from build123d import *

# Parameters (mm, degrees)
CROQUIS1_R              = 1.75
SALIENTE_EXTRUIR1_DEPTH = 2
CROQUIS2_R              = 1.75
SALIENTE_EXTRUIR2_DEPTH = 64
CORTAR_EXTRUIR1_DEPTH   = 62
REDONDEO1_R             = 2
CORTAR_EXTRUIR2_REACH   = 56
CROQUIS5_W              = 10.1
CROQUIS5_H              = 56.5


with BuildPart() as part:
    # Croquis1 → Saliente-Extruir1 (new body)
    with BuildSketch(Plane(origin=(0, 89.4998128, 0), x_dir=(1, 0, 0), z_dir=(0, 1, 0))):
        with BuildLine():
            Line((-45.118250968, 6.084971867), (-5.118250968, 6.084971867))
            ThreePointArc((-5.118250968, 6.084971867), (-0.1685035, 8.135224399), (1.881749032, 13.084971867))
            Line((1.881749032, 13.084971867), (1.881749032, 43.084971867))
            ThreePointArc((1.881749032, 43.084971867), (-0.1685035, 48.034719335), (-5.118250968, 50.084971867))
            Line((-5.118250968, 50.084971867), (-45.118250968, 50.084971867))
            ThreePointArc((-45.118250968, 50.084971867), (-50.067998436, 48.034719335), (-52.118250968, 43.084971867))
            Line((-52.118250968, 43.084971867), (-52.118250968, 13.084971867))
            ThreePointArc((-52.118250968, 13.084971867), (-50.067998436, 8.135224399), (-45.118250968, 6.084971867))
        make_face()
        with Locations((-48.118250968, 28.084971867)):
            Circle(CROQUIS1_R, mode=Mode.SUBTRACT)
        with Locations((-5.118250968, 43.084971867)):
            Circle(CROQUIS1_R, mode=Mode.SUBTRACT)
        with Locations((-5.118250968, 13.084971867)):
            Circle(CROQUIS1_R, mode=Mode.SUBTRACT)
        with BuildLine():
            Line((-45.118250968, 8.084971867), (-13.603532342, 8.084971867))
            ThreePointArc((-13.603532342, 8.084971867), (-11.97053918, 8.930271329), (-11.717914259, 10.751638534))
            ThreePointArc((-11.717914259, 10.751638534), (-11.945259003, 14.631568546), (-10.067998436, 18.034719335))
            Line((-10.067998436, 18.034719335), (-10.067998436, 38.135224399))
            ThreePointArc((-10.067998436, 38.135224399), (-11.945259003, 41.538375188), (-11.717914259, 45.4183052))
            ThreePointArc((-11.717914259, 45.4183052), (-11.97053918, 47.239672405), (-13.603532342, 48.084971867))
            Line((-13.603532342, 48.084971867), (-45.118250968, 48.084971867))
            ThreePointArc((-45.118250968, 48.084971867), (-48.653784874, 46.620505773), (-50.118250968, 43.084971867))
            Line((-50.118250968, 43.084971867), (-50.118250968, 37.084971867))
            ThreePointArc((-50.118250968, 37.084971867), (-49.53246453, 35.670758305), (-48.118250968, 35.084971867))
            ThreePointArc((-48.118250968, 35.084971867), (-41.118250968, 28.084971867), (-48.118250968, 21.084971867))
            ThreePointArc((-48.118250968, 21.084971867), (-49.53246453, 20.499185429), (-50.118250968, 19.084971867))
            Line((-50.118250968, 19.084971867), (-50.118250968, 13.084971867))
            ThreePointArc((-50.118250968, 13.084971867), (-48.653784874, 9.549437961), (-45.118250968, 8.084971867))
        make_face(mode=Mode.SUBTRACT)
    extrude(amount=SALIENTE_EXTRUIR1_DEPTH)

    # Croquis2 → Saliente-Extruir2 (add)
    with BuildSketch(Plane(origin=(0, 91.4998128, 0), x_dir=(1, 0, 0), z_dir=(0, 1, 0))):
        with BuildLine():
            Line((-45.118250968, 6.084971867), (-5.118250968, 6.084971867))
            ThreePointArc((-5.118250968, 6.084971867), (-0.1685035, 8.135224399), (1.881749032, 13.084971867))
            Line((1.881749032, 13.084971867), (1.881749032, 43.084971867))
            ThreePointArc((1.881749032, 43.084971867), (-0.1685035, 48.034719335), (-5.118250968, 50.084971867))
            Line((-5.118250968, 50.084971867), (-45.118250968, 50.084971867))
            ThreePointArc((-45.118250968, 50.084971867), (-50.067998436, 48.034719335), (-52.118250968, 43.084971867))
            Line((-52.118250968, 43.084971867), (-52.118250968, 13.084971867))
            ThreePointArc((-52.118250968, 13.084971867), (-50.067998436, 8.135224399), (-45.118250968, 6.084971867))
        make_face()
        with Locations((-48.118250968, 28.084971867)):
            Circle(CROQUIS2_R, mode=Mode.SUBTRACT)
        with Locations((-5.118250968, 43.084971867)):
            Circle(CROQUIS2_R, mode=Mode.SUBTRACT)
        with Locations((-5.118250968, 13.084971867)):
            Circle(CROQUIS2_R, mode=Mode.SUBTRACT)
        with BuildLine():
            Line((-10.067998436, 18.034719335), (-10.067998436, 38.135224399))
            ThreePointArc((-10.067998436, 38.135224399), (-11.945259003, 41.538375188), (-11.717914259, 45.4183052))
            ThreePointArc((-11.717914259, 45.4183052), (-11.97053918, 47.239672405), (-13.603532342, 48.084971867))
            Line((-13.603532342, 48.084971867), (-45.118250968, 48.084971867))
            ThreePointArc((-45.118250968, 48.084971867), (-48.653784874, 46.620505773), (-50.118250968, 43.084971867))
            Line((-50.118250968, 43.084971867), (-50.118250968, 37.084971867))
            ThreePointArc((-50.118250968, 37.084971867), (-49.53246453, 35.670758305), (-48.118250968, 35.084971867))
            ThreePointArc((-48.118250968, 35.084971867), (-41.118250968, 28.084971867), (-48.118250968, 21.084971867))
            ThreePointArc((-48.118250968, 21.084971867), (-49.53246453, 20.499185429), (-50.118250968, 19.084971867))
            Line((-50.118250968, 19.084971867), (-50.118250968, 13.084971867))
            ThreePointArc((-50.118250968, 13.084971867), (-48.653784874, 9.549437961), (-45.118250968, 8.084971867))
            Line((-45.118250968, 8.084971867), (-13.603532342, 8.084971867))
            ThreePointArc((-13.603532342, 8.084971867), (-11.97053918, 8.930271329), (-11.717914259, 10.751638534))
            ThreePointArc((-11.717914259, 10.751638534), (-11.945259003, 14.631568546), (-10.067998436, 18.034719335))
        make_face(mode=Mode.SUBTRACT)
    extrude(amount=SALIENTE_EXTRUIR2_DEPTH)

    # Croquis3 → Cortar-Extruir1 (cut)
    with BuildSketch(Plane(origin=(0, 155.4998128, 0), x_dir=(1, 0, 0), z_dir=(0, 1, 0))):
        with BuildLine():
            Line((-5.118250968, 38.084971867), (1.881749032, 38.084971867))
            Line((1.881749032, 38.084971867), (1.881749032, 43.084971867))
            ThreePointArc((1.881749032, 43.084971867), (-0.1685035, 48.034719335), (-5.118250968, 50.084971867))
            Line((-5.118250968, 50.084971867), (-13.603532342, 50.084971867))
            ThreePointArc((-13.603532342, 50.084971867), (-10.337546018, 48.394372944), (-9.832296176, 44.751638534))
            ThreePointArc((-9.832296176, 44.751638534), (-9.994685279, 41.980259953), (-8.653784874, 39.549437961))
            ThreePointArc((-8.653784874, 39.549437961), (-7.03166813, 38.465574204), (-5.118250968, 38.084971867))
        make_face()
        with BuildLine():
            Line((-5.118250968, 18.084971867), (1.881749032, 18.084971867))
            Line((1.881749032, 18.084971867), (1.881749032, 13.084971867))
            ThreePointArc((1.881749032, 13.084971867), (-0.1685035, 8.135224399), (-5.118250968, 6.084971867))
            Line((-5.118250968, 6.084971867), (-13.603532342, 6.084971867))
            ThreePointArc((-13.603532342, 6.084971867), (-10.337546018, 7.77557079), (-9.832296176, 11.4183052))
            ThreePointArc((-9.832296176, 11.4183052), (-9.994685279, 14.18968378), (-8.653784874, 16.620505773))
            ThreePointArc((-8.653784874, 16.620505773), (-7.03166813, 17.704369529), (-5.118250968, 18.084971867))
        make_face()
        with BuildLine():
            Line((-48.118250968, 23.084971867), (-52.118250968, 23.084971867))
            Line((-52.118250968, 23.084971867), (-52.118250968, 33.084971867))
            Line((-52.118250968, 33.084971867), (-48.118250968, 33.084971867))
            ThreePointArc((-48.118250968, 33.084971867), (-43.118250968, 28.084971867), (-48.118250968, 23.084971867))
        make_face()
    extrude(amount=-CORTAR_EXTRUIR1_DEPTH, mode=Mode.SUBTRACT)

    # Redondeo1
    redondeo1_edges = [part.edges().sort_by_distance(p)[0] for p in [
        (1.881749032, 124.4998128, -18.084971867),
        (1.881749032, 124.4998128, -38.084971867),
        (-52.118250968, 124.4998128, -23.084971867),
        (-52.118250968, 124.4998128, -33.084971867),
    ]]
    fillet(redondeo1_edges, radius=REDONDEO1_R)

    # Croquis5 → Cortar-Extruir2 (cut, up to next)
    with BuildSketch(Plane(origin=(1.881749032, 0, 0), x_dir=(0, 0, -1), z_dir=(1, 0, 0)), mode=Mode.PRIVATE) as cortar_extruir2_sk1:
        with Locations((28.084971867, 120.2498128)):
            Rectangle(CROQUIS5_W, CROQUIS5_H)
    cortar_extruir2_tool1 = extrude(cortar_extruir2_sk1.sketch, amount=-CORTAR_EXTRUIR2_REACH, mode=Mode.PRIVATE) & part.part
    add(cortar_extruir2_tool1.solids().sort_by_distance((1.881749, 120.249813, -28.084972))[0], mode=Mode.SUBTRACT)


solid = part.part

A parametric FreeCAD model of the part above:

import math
import FreeCAD as App
import Part
import Sketcher
from FreeCAD import Vector
Q = App.Units.Quantity


def edges_at(feature, points):
    """Names of the edges that pass closest to the given points."""
    edges = feature.Shape.Edges
    near = lambda p: min(range(len(edges)), key=lambda i: edges[i].distToShape(Part.Vertex(*p))[0])
    return sorted({f"Edge{near(p) + 1}" for p in points})


def add_polygon(sketch, points):
    """Adds a closed chain of lines whose ends are joined by coincident constraints."""
    first, n = sketch.GeometryCount, len(points)
    for a, b in zip(points, points[1:] + points[:1]):
        sketch.addGeometry(Part.LineSegment(App.Vector(*a, 0), App.Vector(*b, 0)), False)
    for i in range(n):
        sketch.addConstraint(Sketcher.Constraint("Coincident", first + i, 2, first + (i + 1) % n, 1))

doc = App.newDocument("Part")
params = doc.addObject("Spreadsheet::Sheet", "Params")
for row, (alias, value) in enumerate([
    ("sketch1_radius", "7 mm"),
    ("sketch1_radius2", "5 mm"),
    ("sketch1_radius3", "2 mm"),
    ("sketch1_diameter", "3.5 mm"),
    ("sketch1_width", "40 mm"),
    ("pad1_length", "2 mm"),
    ("sketch2_radius", "7 mm"),
    ("sketch2_radius2", "2 mm"),
    ("sketch2_radius3", "5 mm"),
    ("sketch2_diameter", "3.5 mm"),
    ("sketch2_width", "40 mm"),
    ("pad2_length", "64 mm"),
    ("sketch3_radius", "7 mm"),
    ("sketch3_radius2", "4 mm"),
    ("sketch3_radius3", "5 mm"),
    ("sketch3_width", "4 mm"),
    ("pocket1_length", "62 mm"),
    ("fillet_radius", "2 mm"),
    ("sketch4_width", "56.5 mm"),
    ("sketch4_height", "10.1 mm"),
], start=1):
    params.set(f"A{row}", alias)
    params.set(f"B{row}", "=" + value)
    params.setAlias(f"B{row}", alias)

body = doc.addObject("PartDesign::Body", "Body")

# Sketch on XZ plane
sketch1 = body.newObject("Sketcher::SketchObject", "Sketch")
sketch1.AttachmentSupport = (doc.getObject("XZ_Plane"), [""])
sketch1.MapMode = "FlatFace"
sketch1.AttachmentOffset = App.Placement(Vector(0, 0, -89.499813), App.Rotation())
sketch1.addGeometry([
    Part.LineSegment(Vector(-45.118251, -6.084972, 0), Vector(-5.118251, -6.084972, 0)),  # 0
    Part.ArcOfCircle(Part.Circle(Vector(-5.118251, -13.084972, 0), Vector(0, 0, 1), 7), math.radians(0), math.radians(90)),  # 1
    Part.LineSegment(Vector(1.881749, -13.084972, 0), Vector(1.881749, -43.084972, 0)),  # 2
    Part.ArcOfCircle(Part.Circle(Vector(-5.118251, -43.084972, 0), Vector(0, 0, 1), 7), math.radians(-90), math.radians(0)),  # 3
    Part.LineSegment(Vector(-5.118251, -50.084972, 0), Vector(-45.118251, -50.084972, 0)),  # 4
    Part.ArcOfCircle(Part.Circle(Vector(-45.118251, -43.084972, 0), Vector(0, 0, 1), 7), math.radians(-180), math.radians(-90)),  # 5
    Part.LineSegment(Vector(-52.118251, -43.084972, 0), Vector(-52.118251, -13.084972, 0)),  # 6
    Part.ArcOfCircle(Part.Circle(Vector(-45.118251, -13.084972, 0), Vector(0, 0, 1), 7), math.radians(90), math.radians(180)),  # 7
    Part.Circle(Vector(-5.118251, -13.084972, 0), Vector(0, 0, 1), 1.75),  # 8
    Part.Circle(Vector(-48.118251, -28.084972, 0), Vector(0, 0, 1), 1.75),  # 9
    Part.LineSegment(Vector(-13.603532, -8.084972, 0), Vector(-45.118251, -8.084972, 0)),  # 10
    Part.ArcOfCircle(Part.Circle(Vector(-45.118251, -13.084972, 0), Vector(0, 0, 1), 5), math.radians(90), math.radians(180)),  # 11
    Part.LineSegment(Vector(-50.118251, -13.084972, 0), Vector(-50.118251, -19.084972, 0)),  # 12
    Part.ArcOfCircle(Part.Circle(Vector(-48.118251, -19.084972, 0), Vector(0, 0, 1), 2), math.radians(-180), math.radians(-90)),  # 13
    Part.ArcOfCircle(Part.Circle(Vector(-48.118251, -28.084972, 0), Vector(0, 0, 1), 7), math.radians(-90), math.radians(90)),  # 14
    Part.ArcOfCircle(Part.Circle(Vector(-48.118251, -37.084972, 0), Vector(0, 0, 1), 2), math.radians(90), math.radians(180)),  # 15
    Part.LineSegment(Vector(-50.118251, -37.084972, 0), Vector(-50.118251, -43.084972, 0)),  # 16
    Part.ArcOfCircle(Part.Circle(Vector(-45.118251, -43.084972, 0), Vector(0, 0, 1), 5), math.radians(180), math.radians(270)),  # 17
    Part.LineSegment(Vector(-45.118251, -48.084972, 0), Vector(-13.603532, -48.084972, 0)),  # 18
    Part.ArcOfCircle(Part.Circle(Vector(-13.603532, -46.084972, 0), Vector(0, 0, 1), 2), math.radians(-90), math.radians(19.471221)),  # 19
    Part.ArcOfCircle(Part.Circle(Vector(-5.118251, -43.084972, 0), Vector(0, 0, 1), 7), math.radians(135), math.radians(199.471221)),  # 20
    Part.LineSegment(Vector(-10.067998, -38.135224, 0), Vector(-10.067998, -18.034719, 0)),  # 21
    Part.ArcOfCircle(Part.Circle(Vector(-5.118251, -13.084972, 0), Vector(0, 0, 1), 7), math.radians(160.528779), math.radians(225)),  # 22
    Part.ArcOfCircle(Part.Circle(Vector(-13.603532, -10.084972, 0), Vector(0, 0, 1), 2), math.radians(-19.471221), math.radians(90)),  # 23
    Part.Circle(Vector(-5.118251, -43.084972, 0), Vector(0, 0, 1), 1.75),  # 24
], False)
sketch1.addConstraint([
    Sketcher.Constraint("Tangent", 0, 2, 1, 2),
    Sketcher.Constraint("Tangent", 1, 1, 2, 1),
    Sketcher.Constraint("Tangent", 2, 2, 3, 2),
    Sketcher.Constraint("Tangent", 3, 1, 4, 1),
    Sketcher.Constraint("Tangent", 4, 2, 5, 2),
    Sketcher.Constraint("Tangent", 5, 1, 6, 1),
    Sketcher.Constraint("Tangent", 6, 2, 7, 2),
    Sketcher.Constraint("Tangent", 7, 1, 0, 1),
    Sketcher.Constraint("Tangent", 10, 2, 11, 1),
    Sketcher.Constraint("Tangent", 11, 2, 12, 1),
    Sketcher.Constraint("Tangent", 12, 2, 13, 1),
    Sketcher.Constraint("Tangent", 13, 2, 14, 2),
    Sketcher.Constraint("Tangent", 14, 1, 15, 1),
    Sketcher.Constraint("Tangent", 15, 2, 16, 1),
    Sketcher.Constraint("Tangent", 16, 2, 17, 1),
    Sketcher.Constraint("Tangent", 17, 2, 18, 1),
    Sketcher.Constraint("Tangent", 18, 2, 19, 1),
    Sketcher.Constraint("Tangent", 19, 2, 20, 2),
    Sketcher.Constraint("Coincident", 20, 1, 21, 1),
    Sketcher.Constraint("Coincident", 21, 2, 22, 2),
    Sketcher.Constraint("Tangent", 22, 1, 23, 1),
    Sketcher.Constraint("Tangent", 23, 2, 10, 1),
    Sketcher.Constraint("Horizontal", 0),
    Sketcher.Constraint("Vertical", 2),
    Sketcher.Constraint("Horizontal", 4),
    Sketcher.Constraint("Vertical", 6),
    Sketcher.Constraint("Horizontal", 10),
    Sketcher.Constraint("Vertical", 12),
    Sketcher.Constraint("Vertical", 16),
    Sketcher.Constraint("Horizontal", 18),
    Sketcher.Constraint("Vertical", 21),
    Sketcher.Constraint("Coincident", 8, 3, 1, 3),
    Sketcher.Constraint("Coincident", 11, 3, 7, 3),
    Sketcher.Constraint("Coincident", 14, 3, 9, 3),
    Sketcher.Constraint("Coincident", 17, 3, 5, 3),
    Sketcher.Constraint("Coincident", 20, 3, 3, 3),
    Sketcher.Constraint("Coincident", 22, 3, 1, 3),
    Sketcher.Constraint("Coincident", 24, 3, 3, 3),
    Sketcher.Constraint("Equal", 1, 3),
    Sketcher.Constraint("Equal", 3, 5),
    Sketcher.Constraint("Equal", 5, 7),
    Sketcher.Constraint("Equal", 8, 9),
    Sketcher.Constraint("Equal", 7, 14),
    Sketcher.Constraint("Equal", 13, 15),
    Sketcher.Constraint("Equal", 11, 17),
    Sketcher.Constraint("Equal", 15, 19),
    Sketcher.Constraint("Equal", 14, 20),
    Sketcher.Constraint("Equal", 20, 22),
    Sketcher.Constraint("Equal", 19, 23),
    Sketcher.Constraint("Equal", 9, 24),
    Sketcher.Constraint("Vertical", 9, 3, 13, 3),
    Sketcher.Constraint("Equal", 12, 16),
    Sketcher.Constraint("Radius", 1, Q("7 mm")),
    Sketcher.Constraint("Radius", 11, Q("5 mm")),
    Sketcher.Constraint("Radius", 13, Q("2 mm")),
    Sketcher.Constraint("Diameter", 8, Q("3.5 mm")),
    Sketcher.Constraint("DistanceX", 0, 1, 0, 2, Q("40 mm")),
    Sketcher.Constraint("DistanceY", 2, 2, 2, 1, Q("30 mm")),
    Sketcher.Constraint("DistanceX", 20, 1, -1, 1, Q("10.067998 mm")),
    Sketcher.Constraint("DistanceY", 21, 1, 21, 2, Q("20.100505 mm")),
    Sketcher.Constraint("DistanceY", 1, 3, -1, 1, Q("13.084972 mm")),
])
sketch1.setExpression("Constraints[52]", "Params.sketch1_radius")
sketch1.setExpression("Constraints[53]", "Params.sketch1_radius2")
sketch1.setExpression("Constraints[54]", "Params.sketch1_radius3")
sketch1.setExpression("Constraints[55]", "Params.sketch1_diameter")
sketch1.setExpression("Constraints[56]", "Params.sketch1_width")
pad1 = body.newObject("PartDesign::Pad", "Pad")
pad1.Profile = sketch1
pad1.setExpression("Length", "Params.pad1_length")
pad1.Reversed = True

# Sketch on XZ plane
sketch2 = body.newObject("Sketcher::SketchObject", "Sketch001")
sketch2.AttachmentSupport = (doc.getObject("XZ_Plane"), [""])
sketch2.MapMode = "FlatFace"
sketch2.AttachmentOffset = App.Placement(Vector(0, 0, -91.499813), App.Rotation())
sketch2.addGeometry([
    Part.LineSegment(Vector(-45.118251, -6.084972, 0), Vector(-5.118251, -6.084972, 0)),  # 0
    Part.ArcOfCircle(Part.Circle(Vector(-5.118251, -13.084972, 0), Vector(0, 0, 1), 7), math.radians(0), math.radians(90)),  # 1
    Part.LineSegment(Vector(1.881749, -13.084972, 0), Vector(1.881749, -43.084972, 0)),  # 2
    Part.ArcOfCircle(Part.Circle(Vector(-5.118251, -43.084972, 0), Vector(0, 0, 1), 7), math.radians(-90), math.radians(0)),  # 3
    Part.LineSegment(Vector(-5.118251, -50.084972, 0), Vector(-45.118251, -50.084972, 0)),  # 4
    Part.ArcOfCircle(Part.Circle(Vector(-45.118251, -43.084972, 0), Vector(0, 0, 1), 7), math.radians(-180), math.radians(-90)),  # 5
    Part.LineSegment(Vector(-52.118251, -43.084972, 0), Vector(-52.118251, -13.084972, 0)),  # 6
    Part.ArcOfCircle(Part.Circle(Vector(-45.118251, -13.084972, 0), Vector(0, 0, 1), 7), math.radians(90), math.radians(180)),  # 7
    Part.Circle(Vector(-5.118251, -13.084972, 0), Vector(0, 0, 1), 1.75),  # 8
    Part.Circle(Vector(-48.118251, -28.084972, 0), Vector(0, 0, 1), 1.75),  # 9
    Part.LineSegment(Vector(-10.067998, -38.135224, 0), Vector(-10.067998, -18.034719, 0)),  # 10
    Part.ArcOfCircle(Part.Circle(Vector(-5.118251, -13.084972, 0), Vector(0, 0, 1), 7), math.radians(160.528779), math.radians(225)),  # 11
    Part.ArcOfCircle(Part.Circle(Vector(-13.603532, -10.084972, 0), Vector(0, 0, 1), 2), math.radians(-19.471221), math.radians(90)),  # 12
    Part.LineSegment(Vector(-13.603532, -8.084972, 0), Vector(-45.118251, -8.084972, 0)),  # 13
    Part.ArcOfCircle(Part.Circle(Vector(-45.118251, -13.084972, 0), Vector(0, 0, 1), 5), math.radians(90), math.radians(180)),  # 14
    Part.LineSegment(Vector(-50.118251, -13.084972, 0), Vector(-50.118251, -19.084972, 0)),  # 15
    Part.ArcOfCircle(Part.Circle(Vector(-48.118251, -19.084972, 0), Vector(0, 0, 1), 2), math.radians(-180), math.radians(-90)),  # 16
    Part.ArcOfCircle(Part.Circle(Vector(-48.118251, -28.084972, 0), Vector(0, 0, 1), 7), math.radians(-90), math.radians(90)),  # 17
    Part.ArcOfCircle(Part.Circle(Vector(-48.118251, -37.084972, 0), Vector(0, 0, 1), 2), math.radians(90), math.radians(180)),  # 18
    Part.LineSegment(Vector(-50.118251, -37.084972, 0), Vector(-50.118251, -43.084972, 0)),  # 19
    Part.ArcOfCircle(Part.Circle(Vector(-45.118251, -43.084972, 0), Vector(0, 0, 1), 5), math.radians(180), math.radians(270)),  # 20
    Part.LineSegment(Vector(-45.118251, -48.084972, 0), Vector(-13.603532, -48.084972, 0)),  # 21
    Part.ArcOfCircle(Part.Circle(Vector(-13.603532, -46.084972, 0), Vector(0, 0, 1), 2), math.radians(-90), math.radians(19.471221)),  # 22
    Part.ArcOfCircle(Part.Circle(Vector(-5.118251, -43.084972, 0), Vector(0, 0, 1), 7), math.radians(135), math.radians(199.471221)),  # 23
    Part.Circle(Vector(-5.118251, -43.084972, 0), Vector(0, 0, 1), 1.75),  # 24
], False)
sketch2.addConstraint([
    Sketcher.Constraint("Tangent", 0, 2, 1, 2),
    Sketcher.Constraint("Tangent", 1, 1, 2, 1),
    Sketcher.Constraint("Tangent", 2, 2, 3, 2),
    Sketcher.Constraint("Tangent", 3, 1, 4, 1),
    Sketcher.Constraint("Tangent", 4, 2, 5, 2),
    Sketcher.Constraint("Tangent", 5, 1, 6, 1),
    Sketcher.Constraint("Tangent", 6, 2, 7, 2),
    Sketcher.Constraint("Tangent", 7, 1, 0, 1),
    Sketcher.Constraint("Coincident", 10, 2, 11, 2),
    Sketcher.Constraint("Tangent", 11, 1, 12, 1),
    Sketcher.Constraint("Tangent", 12, 2, 13, 1),
    Sketcher.Constraint("Tangent", 13, 2, 14, 1),
    Sketcher.Constraint("Tangent", 14, 2, 15, 1),
    Sketcher.Constraint("Tangent", 15, 2, 16, 1),
    Sketcher.Constraint("Tangent", 16, 2, 17, 2),
    Sketcher.Constraint("Tangent", 17, 1, 18, 1),
    Sketcher.Constraint("Tangent", 18, 2, 19, 1),
    Sketcher.Constraint("Tangent", 19, 2, 20, 1),
    Sketcher.Constraint("Tangent", 20, 2, 21, 1),
    Sketcher.Constraint("Tangent", 21, 2, 22, 1),
    Sketcher.Constraint("Tangent", 22, 2, 23, 2),
    Sketcher.Constraint("Coincident", 23, 1, 10, 1),
    Sketcher.Constraint("Horizontal", 0),
    Sketcher.Constraint("Vertical", 2),
    Sketcher.Constraint("Horizontal", 4),
    Sketcher.Constraint("Vertical", 6),
    Sketcher.Constraint("Vertical", 10),
    Sketcher.Constraint("Horizontal", 13),
    Sketcher.Constraint("Vertical", 15),
    Sketcher.Constraint("Vertical", 19),
    Sketcher.Constraint("Horizontal", 21),
    Sketcher.Constraint("Coincident", 8, 3, 1, 3),
    Sketcher.Constraint("Coincident", 11, 3, 1, 3),
    Sketcher.Constraint("Coincident", 14, 3, 7, 3),
    Sketcher.Constraint("Coincident", 17, 3, 9, 3),
    Sketcher.Constraint("Coincident", 20, 3, 5, 3),
    Sketcher.Constraint("Coincident", 23, 3, 3, 3),
    Sketcher.Constraint("Coincident", 24, 3, 3, 3),
    Sketcher.Constraint("Equal", 1, 3),
    Sketcher.Constraint("Equal", 3, 5),
    Sketcher.Constraint("Equal", 5, 7),
    Sketcher.Constraint("Equal", 8, 9),
    Sketcher.Constraint("Equal", 7, 11),
    Sketcher.Constraint("Equal", 12, 16),
    Sketcher.Constraint("Equal", 11, 17),
    Sketcher.Constraint("Equal", 16, 18),
    Sketcher.Constraint("Equal", 14, 20),
    Sketcher.Constraint("Equal", 18, 22),
    Sketcher.Constraint("Equal", 17, 23),
    Sketcher.Constraint("Equal", 9, 24),
    Sketcher.Constraint("Vertical", 9, 3, 16, 3),
    Sketcher.Constraint("Equal", 15, 19),
    Sketcher.Constraint("Radius", 1, Q("7 mm")),
    Sketcher.Constraint("Radius", 12, Q("2 mm")),
    Sketcher.Constraint("Radius", 14, Q("5 mm")),
    Sketcher.Constraint("Diameter", 8, Q("3.5 mm")),
    Sketcher.Constraint("DistanceX", 0, 1, 0, 2, Q("40 mm")),
    Sketcher.Constraint("DistanceY", 2, 2, 2, 1, Q("30 mm")),
    Sketcher.Constraint("DistanceX", 10, 2, -1, 1, Q("10.067998 mm")),
    Sketcher.Constraint("DistanceY", 10, 1, 10, 2, Q("20.100505 mm")),
    Sketcher.Constraint("DistanceY", 1, 3, -1, 1, Q("13.084972 mm")),
])
sketch2.setExpression("Constraints[52]", "Params.sketch2_radius")
sketch2.setExpression("Constraints[53]", "Params.sketch2_radius2")
sketch2.setExpression("Constraints[54]", "Params.sketch2_radius3")
sketch2.setExpression("Constraints[55]", "Params.sketch2_diameter")
sketch2.setExpression("Constraints[56]", "Params.sketch2_width")
pad2 = body.newObject("PartDesign::Pad", "Pad001")
pad2.Profile = sketch2
pad2.setExpression("Length", "Params.pad2_length")
pad2.Reversed = True

# Sketch on XZ plane
sketch3 = body.newObject("Sketcher::SketchObject", "Sketch002")
sketch3.AttachmentSupport = (doc.getObject("XZ_Plane"), [""])
sketch3.MapMode = "FlatFace"
sketch3.AttachmentOffset = App.Placement(Vector(0, 0, -155.499813), App.Rotation())
sketch3.addGeometry([
    Part.LineSegment(Vector(-5.118251, -38.084972, 0), Vector(1.881749, -38.084972, 0)),  # 0
    Part.LineSegment(Vector(1.881749, -38.084972, 0), Vector(1.881749, -43.084972, 0)),  # 1
    Part.ArcOfCircle(Part.Circle(Vector(-5.118251, -43.084972, 0), Vector(0, 0, 1), 7), math.radians(-90), math.radians(0)),  # 2
    Part.LineSegment(Vector(-5.118251, -50.084972, 0), Vector(-13.603532, -50.084972, 0)),  # 3
    Part.ArcOfCircle(Part.Circle(Vector(-13.603532, -46.084972, 0), Vector(0, 0, 1), 4), math.radians(-90), math.radians(19.471221)),  # 4
    Part.ArcOfCircle(Part.Circle(Vector(-5.118251, -43.084972, 0), Vector(0, 0, 1), 5), math.radians(135), math.radians(199.471221)),  # 5
    Part.ArcOfCircle(Part.Circle(Vector(-5.118251, -43.084972, 0), Vector(0, 0, 1), 5), math.radians(90), math.radians(135)),  # 6
    Part.LineSegment(Vector(1.881749, -18.084972, 0), Vector(-5.118251, -18.084972, 0)),  # 7
    Part.ArcOfCircle(Part.Circle(Vector(-5.118251, -13.084972, 0), Vector(0, 0, 1), 5), math.radians(-135), math.radians(-90)),  # 8
    Part.ArcOfCircle(Part.Circle(Vector(-5.118251, -13.084972, 0), Vector(0, 0, 1), 5), math.radians(160.528779), math.radians(225)),  # 9
    Part.ArcOfCircle(Part.Circle(Vector(-13.603532, -10.084972, 0), Vector(0, 0, 1), 4), math.radians(-19.471221), math.radians(90)),  # 10
    Part.LineSegment(Vector(-13.603532, -6.084972, 0), Vector(-5.118251, -6.084972, 0)),  # 11
    Part.ArcOfCircle(Part.Circle(Vector(-5.118251, -13.084972, 0), Vector(0, 0, 1), 7), math.radians(0), math.radians(90)),  # 12
    Part.LineSegment(Vector(1.881749, -13.084972, 0), Vector(1.881749, -18.084972, 0)),  # 13
    Part.LineSegment(Vector(-52.118251, -23.084972, 0), Vector(-48.118251, -23.084972, 0)),  # 14
    Part.ArcOfCircle(Part.Circle(Vector(-48.118251, -28.084972, 0), Vector(0, 0, 1), 5), math.radians(-90), math.radians(90)),  # 15
    Part.LineSegment(Vector(-48.118251, -33.084972, 0), Vector(-52.118251, -33.084972, 0)),  # 16
    Part.LineSegment(Vector(-52.118251, -33.084972, 0), Vector(-52.118251, -23.084972, 0)),  # 17
], False)
sketch3.addConstraint([
    Sketcher.Constraint("Coincident", 0, 2, 1, 1),
    Sketcher.Constraint("Tangent", 1, 2, 2, 2),
    Sketcher.Constraint("Tangent", 2, 1, 3, 1),
    Sketcher.Constraint("Tangent", 3, 2, 4, 1),
    Sketcher.Constraint("Tangent", 4, 2, 5, 2),
    Sketcher.Constraint("Tangent", 5, 1, 6, 2),
    Sketcher.Constraint("Tangent", 6, 1, 0, 1),
    Sketcher.Constraint("Tangent", 7, 2, 8, 2),
    Sketcher.Constraint("Tangent", 8, 1, 9, 2),
    Sketcher.Constraint("Tangent", 9, 1, 10, 1),
    Sketcher.Constraint("Tangent", 10, 2, 11, 1),
    Sketcher.Constraint("Tangent", 11, 2, 12, 2),
    Sketcher.Constraint("Tangent", 12, 1, 13, 1),
    Sketcher.Constraint("Coincident", 13, 2, 7, 1),
    Sketcher.Constraint("Tangent", 14, 2, 15, 2),
    Sketcher.Constraint("Tangent", 15, 1, 16, 1),
    Sketcher.Constraint("Coincident", 16, 2, 17, 1),
    Sketcher.Constraint("Coincident", 17, 2, 14, 1),
    Sketcher.Constraint("Horizontal", 0),
    Sketcher.Constraint("Vertical", 1),
    Sketcher.Constraint("Horizontal", 3),
    Sketcher.Constraint("Horizontal", 7),
    Sketcher.Constraint("Horizontal", 11),
    Sketcher.Constraint("Vertical", 13),
    Sketcher.Constraint("Horizontal", 14),
    Sketcher.Constraint("Horizontal", 16),
    Sketcher.Constraint("Vertical", 17),
    Sketcher.Constraint("Coincident", 5, 3, 2, 3),
    Sketcher.Constraint("Coincident", 12, 3, 8, 3),
    Sketcher.Constraint("Equal", 5, 6),
    Sketcher.Constraint("Equal", 6, 8),
    Sketcher.Constraint("Equal", 8, 9),
    Sketcher.Constraint("Equal", 4, 10),
    Sketcher.Constraint("Equal", 2, 12),
    Sketcher.Constraint("Equal", 9, 15),
    Sketcher.Constraint("Vertical", 6, 3, 8, 3),
    Sketcher.Constraint("Vertical", 5, 1, 8, 1),
    Sketcher.Constraint("Radius", 2, Q("7 mm")),
    Sketcher.Constraint("Radius", 4, Q("4 mm")),
    Sketcher.Constraint("Radius", 5, Q("5 mm")),
    Sketcher.Constraint("DistanceX", 14, 1, 14, 2, Q("4 mm")),
    Sketcher.Constraint("DistanceY", 6, 3, 8, 3, Q("30 mm")),
    Sketcher.Constraint("DistanceY", 4, 3, 15, 3, Q("18 mm")),
    Sketcher.Constraint("DistanceX", 15, 3, 6, 3, Q("43 mm")),
    Sketcher.Constraint("DistanceY", 4, 2, 5, 1, Q("5.202201 mm")),
    Sketcher.Constraint("DistanceX", 2, 3, -1, 1, Q("5.118251 mm")),
    Sketcher.Constraint("DistanceY", 2, 3, -1, 1, Q("43.084972 mm")),
])
sketch3.setExpression("Constraints[37]", "Params.sketch3_radius")
sketch3.setExpression("Constraints[38]", "Params.sketch3_radius2")
sketch3.setExpression("Constraints[39]", "Params.sketch3_radius3")
sketch3.setExpression("Constraints[40]", "Params.sketch3_width")
pocket1 = body.newObject("PartDesign::Pocket", "Pocket")
pocket1.Profile = sketch3
pocket1.setExpression("Length", "Params.pocket1_length")
pocket1.Reversed = True
doc.recompute()

fillet = body.newObject("PartDesign::Fillet", "Fillet")
fillet.Base = (pocket1, edges_at(pocket1, [
    (1.882, 124.5, -18.085),
    (1.882, 124.5, -38.085),
    (-52.118, 124.5, -23.085),
    (-52.118, 124.5, -33.085),
]))
fillet.setExpression("Radius", "Params.fillet_radius")

# Sketch on YZ plane
sketch4 = body.newObject("Sketcher::SketchObject", "Sketch003")
sketch4.AttachmentSupport = (doc.getObject("YZ_Plane"), [""])
sketch4.MapMode = "FlatFace"
sketch4.AttachmentOffset = App.Placement(Vector(0, 0, 1.881749), App.Rotation())
add_polygon(sketch4, [(148.499813, -23.034972), (91.999813, -23.034972), (91.999813, -33.134972), (148.499813, -33.134972)])  # lines 0-3
sketch4.addConstraint([
    Sketcher.Constraint("Horizontal", 0),
    Sketcher.Constraint("Vertical", 1),
    Sketcher.Constraint("Horizontal", 2),
    Sketcher.Constraint("Vertical", 3),
    Sketcher.Constraint("DistanceX", 0, 2, 0, 1, Q("56.5 mm")),
    Sketcher.Constraint("DistanceY", 1, 2, 1, 1, Q("10.1 mm")),
    Sketcher.Constraint("DistanceY", 0, 2, -1, 1, Q("23.034972 mm")),
    Sketcher.Constraint("DistanceX", -1, 1, 0, 2, Q("91.999813 mm")),
])
sketch4.setExpression("Constraints[8]", "Params.sketch4_width")
sketch4.setExpression("Constraints[9]", "Params.sketch4_height")
pocket2 = body.newObject("PartDesign::Pocket", "Pocket001")
pocket2.Profile = sketch4
pocket2.Type = "UpToFirst"

doc.recompute()
